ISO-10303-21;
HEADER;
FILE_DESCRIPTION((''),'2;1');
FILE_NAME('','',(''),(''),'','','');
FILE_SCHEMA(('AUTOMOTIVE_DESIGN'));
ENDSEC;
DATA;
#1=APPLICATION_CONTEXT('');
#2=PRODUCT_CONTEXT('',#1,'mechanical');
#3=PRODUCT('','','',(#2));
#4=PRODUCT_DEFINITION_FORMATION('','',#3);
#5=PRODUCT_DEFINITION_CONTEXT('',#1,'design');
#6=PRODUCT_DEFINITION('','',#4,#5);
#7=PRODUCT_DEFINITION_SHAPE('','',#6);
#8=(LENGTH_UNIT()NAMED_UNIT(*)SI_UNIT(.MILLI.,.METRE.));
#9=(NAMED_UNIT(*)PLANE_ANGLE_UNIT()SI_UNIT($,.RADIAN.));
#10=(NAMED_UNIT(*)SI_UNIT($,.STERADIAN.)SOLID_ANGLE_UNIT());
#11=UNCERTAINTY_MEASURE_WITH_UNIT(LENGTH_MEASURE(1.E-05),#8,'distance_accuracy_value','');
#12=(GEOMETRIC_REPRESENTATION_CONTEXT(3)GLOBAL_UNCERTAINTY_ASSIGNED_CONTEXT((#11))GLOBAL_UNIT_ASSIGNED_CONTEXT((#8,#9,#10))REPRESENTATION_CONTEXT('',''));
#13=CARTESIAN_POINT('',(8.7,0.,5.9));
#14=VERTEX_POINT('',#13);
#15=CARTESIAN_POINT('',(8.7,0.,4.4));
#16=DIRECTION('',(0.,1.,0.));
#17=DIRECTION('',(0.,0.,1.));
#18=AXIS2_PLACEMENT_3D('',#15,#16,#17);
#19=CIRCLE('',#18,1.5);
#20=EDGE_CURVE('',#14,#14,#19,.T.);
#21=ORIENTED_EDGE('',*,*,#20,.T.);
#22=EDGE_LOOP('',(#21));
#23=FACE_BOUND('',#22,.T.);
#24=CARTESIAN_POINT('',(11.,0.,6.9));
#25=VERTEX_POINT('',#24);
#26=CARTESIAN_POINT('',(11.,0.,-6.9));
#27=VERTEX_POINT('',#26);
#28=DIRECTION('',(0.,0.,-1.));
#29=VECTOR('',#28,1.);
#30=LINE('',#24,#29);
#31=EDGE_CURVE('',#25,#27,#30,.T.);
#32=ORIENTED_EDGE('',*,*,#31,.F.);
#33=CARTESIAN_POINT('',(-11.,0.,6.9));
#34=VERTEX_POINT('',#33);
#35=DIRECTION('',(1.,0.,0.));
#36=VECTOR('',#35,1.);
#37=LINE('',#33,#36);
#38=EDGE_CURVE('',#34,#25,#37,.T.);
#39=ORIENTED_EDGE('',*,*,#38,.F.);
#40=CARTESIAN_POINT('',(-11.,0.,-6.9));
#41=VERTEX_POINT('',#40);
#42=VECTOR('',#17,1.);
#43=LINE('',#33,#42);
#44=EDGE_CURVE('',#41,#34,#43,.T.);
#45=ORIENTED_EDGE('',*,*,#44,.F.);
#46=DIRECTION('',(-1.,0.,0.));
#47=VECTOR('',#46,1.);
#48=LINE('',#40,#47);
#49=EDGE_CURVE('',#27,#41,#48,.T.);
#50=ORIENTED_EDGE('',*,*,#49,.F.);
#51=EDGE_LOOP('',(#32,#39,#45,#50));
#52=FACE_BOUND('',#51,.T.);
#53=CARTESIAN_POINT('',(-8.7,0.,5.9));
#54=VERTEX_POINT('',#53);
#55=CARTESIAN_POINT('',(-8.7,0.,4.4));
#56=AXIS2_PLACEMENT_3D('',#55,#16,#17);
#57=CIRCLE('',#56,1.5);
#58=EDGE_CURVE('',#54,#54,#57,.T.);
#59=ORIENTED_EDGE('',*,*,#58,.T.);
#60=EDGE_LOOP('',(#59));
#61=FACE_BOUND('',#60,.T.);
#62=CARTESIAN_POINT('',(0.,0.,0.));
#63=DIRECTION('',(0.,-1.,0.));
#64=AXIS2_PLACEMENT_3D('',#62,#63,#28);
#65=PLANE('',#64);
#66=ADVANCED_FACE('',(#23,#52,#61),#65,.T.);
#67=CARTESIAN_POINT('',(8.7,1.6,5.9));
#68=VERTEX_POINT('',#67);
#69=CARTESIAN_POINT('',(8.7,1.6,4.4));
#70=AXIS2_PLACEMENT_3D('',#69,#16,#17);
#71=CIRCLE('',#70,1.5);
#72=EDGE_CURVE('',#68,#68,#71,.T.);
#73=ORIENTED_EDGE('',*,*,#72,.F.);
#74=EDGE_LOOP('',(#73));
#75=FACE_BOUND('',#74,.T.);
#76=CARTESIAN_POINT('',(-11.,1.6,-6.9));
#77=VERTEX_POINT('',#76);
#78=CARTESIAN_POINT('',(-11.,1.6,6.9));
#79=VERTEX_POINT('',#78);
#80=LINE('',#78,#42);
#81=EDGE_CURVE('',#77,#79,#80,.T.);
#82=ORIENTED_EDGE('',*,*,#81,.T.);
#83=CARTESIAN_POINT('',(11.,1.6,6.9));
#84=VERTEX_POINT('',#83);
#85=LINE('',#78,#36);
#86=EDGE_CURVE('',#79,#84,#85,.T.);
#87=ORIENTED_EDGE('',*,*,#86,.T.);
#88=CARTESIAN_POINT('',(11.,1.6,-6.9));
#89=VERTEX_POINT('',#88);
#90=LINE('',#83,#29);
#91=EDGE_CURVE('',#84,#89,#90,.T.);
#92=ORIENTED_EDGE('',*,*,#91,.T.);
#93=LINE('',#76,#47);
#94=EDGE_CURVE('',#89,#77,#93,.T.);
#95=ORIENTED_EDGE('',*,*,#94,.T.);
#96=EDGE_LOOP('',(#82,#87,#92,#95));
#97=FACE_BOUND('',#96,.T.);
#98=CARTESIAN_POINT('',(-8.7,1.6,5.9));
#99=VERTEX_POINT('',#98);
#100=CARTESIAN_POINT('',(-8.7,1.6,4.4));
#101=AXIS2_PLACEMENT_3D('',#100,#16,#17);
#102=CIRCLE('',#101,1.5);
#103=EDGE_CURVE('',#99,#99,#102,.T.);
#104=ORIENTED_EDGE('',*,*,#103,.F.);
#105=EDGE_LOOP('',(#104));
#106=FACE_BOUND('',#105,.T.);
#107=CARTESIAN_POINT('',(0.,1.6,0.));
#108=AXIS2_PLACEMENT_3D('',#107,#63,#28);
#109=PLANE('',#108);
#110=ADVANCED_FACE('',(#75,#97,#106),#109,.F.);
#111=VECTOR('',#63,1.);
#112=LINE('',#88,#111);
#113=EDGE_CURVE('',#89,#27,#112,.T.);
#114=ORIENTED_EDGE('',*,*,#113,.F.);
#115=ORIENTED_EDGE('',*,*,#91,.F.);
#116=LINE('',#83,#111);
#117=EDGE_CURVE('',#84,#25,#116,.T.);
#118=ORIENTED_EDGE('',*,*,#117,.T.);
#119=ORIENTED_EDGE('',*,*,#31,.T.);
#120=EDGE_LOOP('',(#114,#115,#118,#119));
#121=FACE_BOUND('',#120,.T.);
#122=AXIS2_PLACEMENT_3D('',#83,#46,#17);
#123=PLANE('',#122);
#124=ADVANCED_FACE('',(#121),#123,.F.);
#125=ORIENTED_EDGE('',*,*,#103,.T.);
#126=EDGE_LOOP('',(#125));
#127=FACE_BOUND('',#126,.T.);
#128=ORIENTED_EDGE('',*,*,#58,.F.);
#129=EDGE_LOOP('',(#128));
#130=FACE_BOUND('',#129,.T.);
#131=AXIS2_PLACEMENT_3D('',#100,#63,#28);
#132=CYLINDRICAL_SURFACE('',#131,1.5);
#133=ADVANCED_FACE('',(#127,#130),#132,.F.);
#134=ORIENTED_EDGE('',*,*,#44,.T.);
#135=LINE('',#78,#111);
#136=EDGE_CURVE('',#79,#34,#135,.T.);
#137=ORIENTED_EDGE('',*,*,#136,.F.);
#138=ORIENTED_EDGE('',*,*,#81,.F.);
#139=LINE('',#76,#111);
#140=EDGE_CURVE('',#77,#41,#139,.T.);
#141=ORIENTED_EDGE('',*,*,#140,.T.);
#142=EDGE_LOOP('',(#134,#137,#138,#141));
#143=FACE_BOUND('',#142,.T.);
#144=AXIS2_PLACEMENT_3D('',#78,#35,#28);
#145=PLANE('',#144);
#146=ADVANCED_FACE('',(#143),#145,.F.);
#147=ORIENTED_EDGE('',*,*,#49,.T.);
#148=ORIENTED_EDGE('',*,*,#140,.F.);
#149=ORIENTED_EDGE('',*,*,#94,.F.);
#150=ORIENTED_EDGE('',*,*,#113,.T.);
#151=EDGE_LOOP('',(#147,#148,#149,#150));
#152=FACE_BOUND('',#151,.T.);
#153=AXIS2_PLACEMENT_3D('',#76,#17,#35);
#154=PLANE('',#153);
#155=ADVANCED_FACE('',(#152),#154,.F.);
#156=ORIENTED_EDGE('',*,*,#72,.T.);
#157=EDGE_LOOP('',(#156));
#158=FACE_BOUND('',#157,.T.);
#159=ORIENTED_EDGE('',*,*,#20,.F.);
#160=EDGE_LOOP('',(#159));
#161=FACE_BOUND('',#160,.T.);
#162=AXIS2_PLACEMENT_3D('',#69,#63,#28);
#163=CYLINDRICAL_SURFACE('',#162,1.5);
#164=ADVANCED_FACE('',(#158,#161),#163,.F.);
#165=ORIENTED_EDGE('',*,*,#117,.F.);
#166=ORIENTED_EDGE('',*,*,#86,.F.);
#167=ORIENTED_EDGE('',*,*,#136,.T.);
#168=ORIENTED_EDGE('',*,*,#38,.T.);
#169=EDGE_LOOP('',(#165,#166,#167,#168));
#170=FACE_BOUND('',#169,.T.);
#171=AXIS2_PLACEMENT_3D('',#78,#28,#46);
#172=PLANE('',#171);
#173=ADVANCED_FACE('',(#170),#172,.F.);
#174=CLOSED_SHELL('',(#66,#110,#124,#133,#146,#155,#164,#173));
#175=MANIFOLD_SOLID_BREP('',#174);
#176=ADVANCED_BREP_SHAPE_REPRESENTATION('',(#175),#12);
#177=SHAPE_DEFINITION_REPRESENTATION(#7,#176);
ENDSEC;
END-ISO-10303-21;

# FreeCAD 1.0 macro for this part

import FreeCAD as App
import Part
import Sketcher


def add_polygon(sketch, points):
    """Adds a closed chain of lines whose ends are joined by coincident constraints."""
    first, n = sketch.GeometryCount, len(points)
    for a, b in zip(points, points[1:] + points[:1]):
        sketch.addGeometry(Part.LineSegment(App.Vector(*a, 0), App.Vector(*b, 0)), False)
    for i in range(n):
        sketch.addConstraint(Sketcher.Constraint("Coincident", first + i, 2, first + (i + 1) % n, 1))

doc = App.newDocument("Part")
body = doc.addObject("PartDesign::Body", "Body")

# Sketch on XZ plane
sketch1 = body.newObject("Sketcher::SketchObject", "Sketch")
sketch1.AttachmentSupport = (doc.getObject("XZ_Plane"), [""])
sketch1.MapMode = "FlatFace"
add_polygon(sketch1, [(-11, -6.9), (-11, 6.9), (11, 6.9), (11, -6.9)])  # lines 0-3
sketch1.addGeometry(Part.Circle(App.Vector(-8.7, 4.4, 0), App.Vector(0, 0, 1), 1.5), False)  # 4
sketch1.addGeometry(Part.Circle(App.Vector(8.7, 4.4, 0), App.Vector(0, 0, 1), 1.5), False)  # 5
sketch1.addConstraint([
    Sketcher.Constraint("Vertical", 0),
    Sketcher.Constraint("Horizontal", 1),
    Sketcher.Constraint("Vertical", 2),
    Sketcher.Constraint("Horizontal", 3),
    Sketcher.Constraint("Equal", 4, 5),
    Sketcher.Constraint("Symmetric", 0, 2, 2, 2, -1, 1),
    Sketcher.Constraint("Symmetric", 4, 3, 5, 3, -2),
    Sketcher.Constraint("Diameter", 4, 3.0),
    Sketcher.Constraint("DistanceX", 1, 1, 1, 2, 22.0),
    Sketcher.Constraint("DistanceY", 0, 1, 0, 2, 13.8),
    Sketcher.Constraint("DistanceX", 4, 3, -1, 1, 8.7),
    Sketcher.Constraint("DistanceY", -1, 1, 4, 3, 4.4),
])
pad1 = body.newObject("PartDesign::Pad", "Pad")
pad1.Profile = sketch1
pad1.Length = 1.6
pad1.Reversed = True

doc.recompute()
